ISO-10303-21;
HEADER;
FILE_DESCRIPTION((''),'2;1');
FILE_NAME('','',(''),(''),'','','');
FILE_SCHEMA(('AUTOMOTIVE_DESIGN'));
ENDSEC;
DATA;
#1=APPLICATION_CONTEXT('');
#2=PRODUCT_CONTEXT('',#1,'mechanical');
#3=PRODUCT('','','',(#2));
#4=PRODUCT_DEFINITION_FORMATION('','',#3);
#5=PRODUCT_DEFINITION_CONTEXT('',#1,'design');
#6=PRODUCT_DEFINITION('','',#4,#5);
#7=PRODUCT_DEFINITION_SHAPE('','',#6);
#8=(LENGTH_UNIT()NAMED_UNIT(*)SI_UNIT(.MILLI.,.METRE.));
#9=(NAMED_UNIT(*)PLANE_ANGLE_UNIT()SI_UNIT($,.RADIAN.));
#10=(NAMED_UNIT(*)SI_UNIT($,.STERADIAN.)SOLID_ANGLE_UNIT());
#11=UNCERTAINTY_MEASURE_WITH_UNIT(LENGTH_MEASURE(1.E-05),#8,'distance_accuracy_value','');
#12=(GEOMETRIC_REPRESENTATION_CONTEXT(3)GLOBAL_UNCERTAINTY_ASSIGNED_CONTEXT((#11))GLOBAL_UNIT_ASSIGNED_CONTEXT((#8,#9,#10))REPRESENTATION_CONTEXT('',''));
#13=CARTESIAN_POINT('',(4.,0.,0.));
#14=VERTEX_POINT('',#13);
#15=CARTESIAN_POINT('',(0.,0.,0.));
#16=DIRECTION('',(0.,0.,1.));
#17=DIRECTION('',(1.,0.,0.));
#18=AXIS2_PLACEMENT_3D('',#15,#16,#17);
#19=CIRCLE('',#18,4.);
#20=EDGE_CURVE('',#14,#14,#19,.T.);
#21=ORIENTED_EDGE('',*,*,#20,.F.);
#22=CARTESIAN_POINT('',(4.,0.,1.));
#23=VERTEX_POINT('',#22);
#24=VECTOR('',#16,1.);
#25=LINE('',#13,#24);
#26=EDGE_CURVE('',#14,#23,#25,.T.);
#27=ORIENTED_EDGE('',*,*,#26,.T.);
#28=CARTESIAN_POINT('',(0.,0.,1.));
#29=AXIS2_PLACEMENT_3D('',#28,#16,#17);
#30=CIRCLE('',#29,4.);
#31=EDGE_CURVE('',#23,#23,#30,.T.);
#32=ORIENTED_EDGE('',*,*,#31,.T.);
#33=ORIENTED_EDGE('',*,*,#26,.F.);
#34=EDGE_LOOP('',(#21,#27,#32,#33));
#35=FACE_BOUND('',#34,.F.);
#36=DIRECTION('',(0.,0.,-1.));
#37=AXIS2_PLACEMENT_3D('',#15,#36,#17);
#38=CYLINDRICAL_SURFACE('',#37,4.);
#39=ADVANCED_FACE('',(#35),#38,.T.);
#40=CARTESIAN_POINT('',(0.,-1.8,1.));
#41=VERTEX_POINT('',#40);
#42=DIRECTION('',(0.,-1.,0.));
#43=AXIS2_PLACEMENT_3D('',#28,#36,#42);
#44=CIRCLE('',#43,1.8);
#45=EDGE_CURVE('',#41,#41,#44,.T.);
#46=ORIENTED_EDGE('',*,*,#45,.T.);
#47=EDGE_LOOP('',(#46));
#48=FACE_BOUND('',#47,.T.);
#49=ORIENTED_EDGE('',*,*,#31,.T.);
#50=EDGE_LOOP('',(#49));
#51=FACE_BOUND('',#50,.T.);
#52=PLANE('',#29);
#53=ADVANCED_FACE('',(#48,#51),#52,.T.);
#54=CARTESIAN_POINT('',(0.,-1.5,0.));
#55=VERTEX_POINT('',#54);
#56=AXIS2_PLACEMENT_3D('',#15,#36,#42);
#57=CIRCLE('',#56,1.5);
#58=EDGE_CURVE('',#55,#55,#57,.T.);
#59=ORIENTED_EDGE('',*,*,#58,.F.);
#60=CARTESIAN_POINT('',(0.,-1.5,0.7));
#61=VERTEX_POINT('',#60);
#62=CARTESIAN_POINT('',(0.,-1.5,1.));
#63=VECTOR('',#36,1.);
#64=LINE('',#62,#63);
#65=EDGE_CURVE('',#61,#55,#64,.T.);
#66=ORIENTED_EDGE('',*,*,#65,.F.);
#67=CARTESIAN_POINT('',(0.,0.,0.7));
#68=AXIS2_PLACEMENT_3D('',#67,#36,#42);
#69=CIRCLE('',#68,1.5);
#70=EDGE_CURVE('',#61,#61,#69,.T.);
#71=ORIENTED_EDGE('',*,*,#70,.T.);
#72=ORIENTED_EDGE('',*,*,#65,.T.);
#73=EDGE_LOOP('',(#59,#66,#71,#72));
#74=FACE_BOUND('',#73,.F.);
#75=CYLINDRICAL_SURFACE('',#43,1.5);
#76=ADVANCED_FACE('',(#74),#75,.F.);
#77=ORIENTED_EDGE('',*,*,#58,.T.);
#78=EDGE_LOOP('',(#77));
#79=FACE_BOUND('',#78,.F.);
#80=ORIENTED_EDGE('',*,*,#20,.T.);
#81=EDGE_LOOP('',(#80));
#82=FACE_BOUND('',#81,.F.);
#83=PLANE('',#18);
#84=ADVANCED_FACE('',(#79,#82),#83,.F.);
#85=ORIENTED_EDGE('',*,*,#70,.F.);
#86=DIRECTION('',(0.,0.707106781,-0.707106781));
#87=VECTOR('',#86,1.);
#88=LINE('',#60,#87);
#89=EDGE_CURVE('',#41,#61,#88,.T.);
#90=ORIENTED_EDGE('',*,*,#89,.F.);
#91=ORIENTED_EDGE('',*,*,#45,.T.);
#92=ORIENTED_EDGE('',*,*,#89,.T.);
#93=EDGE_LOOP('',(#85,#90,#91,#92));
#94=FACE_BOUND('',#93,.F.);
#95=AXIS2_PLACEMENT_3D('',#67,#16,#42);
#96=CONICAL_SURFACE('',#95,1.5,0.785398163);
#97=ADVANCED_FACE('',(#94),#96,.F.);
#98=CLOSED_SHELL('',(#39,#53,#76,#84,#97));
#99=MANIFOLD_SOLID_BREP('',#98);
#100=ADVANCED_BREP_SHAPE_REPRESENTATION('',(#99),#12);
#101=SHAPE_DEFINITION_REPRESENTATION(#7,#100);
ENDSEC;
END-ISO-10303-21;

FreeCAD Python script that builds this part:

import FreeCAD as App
import Part
import Sketcher

V = App.Vector


def edges_at(feature, points):
    """Names of the edges that pass closest to the given points."""
    edges = feature.Shape.Edges
    near = lambda p: min(range(len(edges)), key=lambda i: edges[i].distToShape(Part.Vertex(*p))[0])
    return sorted({f"Edge{near(p) + 1}" for p in points})

doc = App.newDocument("Part")
body = doc.addObject("PartDesign::Body", "Body")

# Sketch on XY plane
sketch1 = body.newObject("Sketcher::SketchObject", "Sketch")
sketch1.AttachmentSupport = (doc.getObject("XY_Plane"), [""])
sketch1.MapMode = "FlatFace"
sketch1.addGeometry(Part.Circle(V(0, 0, 0), V(0, 0, 1), 4), False)
sketch1.addConstraint(Sketcher.Constraint("Coincident", 0, 3, -1, 1))
sketch1.addConstraint(Sketcher.Constraint("Diameter", 0, 8.0))
pad1 = body.newObject("PartDesign::Pad", "Pad")
pad1.Profile = sketch1
pad1.Length = 1

# Sketch on XY plane
sketch2 = body.newObject("Sketcher::SketchObject", "Sketch001")
sketch2.AttachmentSupport = (doc.getObject("XY_Plane"), [""])
sketch2.MapMode = "FlatFace"
sketch2.AttachmentOffset = App.Placement(V(0, 0, 1), App.Rotation())
sketch2.addGeometry(Part.Circle(V(0, 0, 0), V(0, 0, 1), 1.5), False)
sketch2.addConstraint(Sketcher.Constraint("Coincident", 0, 3, -1, 1))
sketch2.addConstraint(Sketcher.Constraint("Diameter", 0, 3.0))
doc.recompute()
hole = body.newObject("PartDesign::Hole", "Hole")
hole.Profile = sketch2
hole.ThreadType = "None"
hole.Diameter = 3
hole.DepthType = "ThroughAll"
doc.recompute()

chamfer = body.newObject("PartDesign::Chamfer", "Chamfer")
chamfer.Base = (hole, edges_at(hole, [(0, 1.5, 1)]))
chamfer.Size = 0.3

doc.recompute()
